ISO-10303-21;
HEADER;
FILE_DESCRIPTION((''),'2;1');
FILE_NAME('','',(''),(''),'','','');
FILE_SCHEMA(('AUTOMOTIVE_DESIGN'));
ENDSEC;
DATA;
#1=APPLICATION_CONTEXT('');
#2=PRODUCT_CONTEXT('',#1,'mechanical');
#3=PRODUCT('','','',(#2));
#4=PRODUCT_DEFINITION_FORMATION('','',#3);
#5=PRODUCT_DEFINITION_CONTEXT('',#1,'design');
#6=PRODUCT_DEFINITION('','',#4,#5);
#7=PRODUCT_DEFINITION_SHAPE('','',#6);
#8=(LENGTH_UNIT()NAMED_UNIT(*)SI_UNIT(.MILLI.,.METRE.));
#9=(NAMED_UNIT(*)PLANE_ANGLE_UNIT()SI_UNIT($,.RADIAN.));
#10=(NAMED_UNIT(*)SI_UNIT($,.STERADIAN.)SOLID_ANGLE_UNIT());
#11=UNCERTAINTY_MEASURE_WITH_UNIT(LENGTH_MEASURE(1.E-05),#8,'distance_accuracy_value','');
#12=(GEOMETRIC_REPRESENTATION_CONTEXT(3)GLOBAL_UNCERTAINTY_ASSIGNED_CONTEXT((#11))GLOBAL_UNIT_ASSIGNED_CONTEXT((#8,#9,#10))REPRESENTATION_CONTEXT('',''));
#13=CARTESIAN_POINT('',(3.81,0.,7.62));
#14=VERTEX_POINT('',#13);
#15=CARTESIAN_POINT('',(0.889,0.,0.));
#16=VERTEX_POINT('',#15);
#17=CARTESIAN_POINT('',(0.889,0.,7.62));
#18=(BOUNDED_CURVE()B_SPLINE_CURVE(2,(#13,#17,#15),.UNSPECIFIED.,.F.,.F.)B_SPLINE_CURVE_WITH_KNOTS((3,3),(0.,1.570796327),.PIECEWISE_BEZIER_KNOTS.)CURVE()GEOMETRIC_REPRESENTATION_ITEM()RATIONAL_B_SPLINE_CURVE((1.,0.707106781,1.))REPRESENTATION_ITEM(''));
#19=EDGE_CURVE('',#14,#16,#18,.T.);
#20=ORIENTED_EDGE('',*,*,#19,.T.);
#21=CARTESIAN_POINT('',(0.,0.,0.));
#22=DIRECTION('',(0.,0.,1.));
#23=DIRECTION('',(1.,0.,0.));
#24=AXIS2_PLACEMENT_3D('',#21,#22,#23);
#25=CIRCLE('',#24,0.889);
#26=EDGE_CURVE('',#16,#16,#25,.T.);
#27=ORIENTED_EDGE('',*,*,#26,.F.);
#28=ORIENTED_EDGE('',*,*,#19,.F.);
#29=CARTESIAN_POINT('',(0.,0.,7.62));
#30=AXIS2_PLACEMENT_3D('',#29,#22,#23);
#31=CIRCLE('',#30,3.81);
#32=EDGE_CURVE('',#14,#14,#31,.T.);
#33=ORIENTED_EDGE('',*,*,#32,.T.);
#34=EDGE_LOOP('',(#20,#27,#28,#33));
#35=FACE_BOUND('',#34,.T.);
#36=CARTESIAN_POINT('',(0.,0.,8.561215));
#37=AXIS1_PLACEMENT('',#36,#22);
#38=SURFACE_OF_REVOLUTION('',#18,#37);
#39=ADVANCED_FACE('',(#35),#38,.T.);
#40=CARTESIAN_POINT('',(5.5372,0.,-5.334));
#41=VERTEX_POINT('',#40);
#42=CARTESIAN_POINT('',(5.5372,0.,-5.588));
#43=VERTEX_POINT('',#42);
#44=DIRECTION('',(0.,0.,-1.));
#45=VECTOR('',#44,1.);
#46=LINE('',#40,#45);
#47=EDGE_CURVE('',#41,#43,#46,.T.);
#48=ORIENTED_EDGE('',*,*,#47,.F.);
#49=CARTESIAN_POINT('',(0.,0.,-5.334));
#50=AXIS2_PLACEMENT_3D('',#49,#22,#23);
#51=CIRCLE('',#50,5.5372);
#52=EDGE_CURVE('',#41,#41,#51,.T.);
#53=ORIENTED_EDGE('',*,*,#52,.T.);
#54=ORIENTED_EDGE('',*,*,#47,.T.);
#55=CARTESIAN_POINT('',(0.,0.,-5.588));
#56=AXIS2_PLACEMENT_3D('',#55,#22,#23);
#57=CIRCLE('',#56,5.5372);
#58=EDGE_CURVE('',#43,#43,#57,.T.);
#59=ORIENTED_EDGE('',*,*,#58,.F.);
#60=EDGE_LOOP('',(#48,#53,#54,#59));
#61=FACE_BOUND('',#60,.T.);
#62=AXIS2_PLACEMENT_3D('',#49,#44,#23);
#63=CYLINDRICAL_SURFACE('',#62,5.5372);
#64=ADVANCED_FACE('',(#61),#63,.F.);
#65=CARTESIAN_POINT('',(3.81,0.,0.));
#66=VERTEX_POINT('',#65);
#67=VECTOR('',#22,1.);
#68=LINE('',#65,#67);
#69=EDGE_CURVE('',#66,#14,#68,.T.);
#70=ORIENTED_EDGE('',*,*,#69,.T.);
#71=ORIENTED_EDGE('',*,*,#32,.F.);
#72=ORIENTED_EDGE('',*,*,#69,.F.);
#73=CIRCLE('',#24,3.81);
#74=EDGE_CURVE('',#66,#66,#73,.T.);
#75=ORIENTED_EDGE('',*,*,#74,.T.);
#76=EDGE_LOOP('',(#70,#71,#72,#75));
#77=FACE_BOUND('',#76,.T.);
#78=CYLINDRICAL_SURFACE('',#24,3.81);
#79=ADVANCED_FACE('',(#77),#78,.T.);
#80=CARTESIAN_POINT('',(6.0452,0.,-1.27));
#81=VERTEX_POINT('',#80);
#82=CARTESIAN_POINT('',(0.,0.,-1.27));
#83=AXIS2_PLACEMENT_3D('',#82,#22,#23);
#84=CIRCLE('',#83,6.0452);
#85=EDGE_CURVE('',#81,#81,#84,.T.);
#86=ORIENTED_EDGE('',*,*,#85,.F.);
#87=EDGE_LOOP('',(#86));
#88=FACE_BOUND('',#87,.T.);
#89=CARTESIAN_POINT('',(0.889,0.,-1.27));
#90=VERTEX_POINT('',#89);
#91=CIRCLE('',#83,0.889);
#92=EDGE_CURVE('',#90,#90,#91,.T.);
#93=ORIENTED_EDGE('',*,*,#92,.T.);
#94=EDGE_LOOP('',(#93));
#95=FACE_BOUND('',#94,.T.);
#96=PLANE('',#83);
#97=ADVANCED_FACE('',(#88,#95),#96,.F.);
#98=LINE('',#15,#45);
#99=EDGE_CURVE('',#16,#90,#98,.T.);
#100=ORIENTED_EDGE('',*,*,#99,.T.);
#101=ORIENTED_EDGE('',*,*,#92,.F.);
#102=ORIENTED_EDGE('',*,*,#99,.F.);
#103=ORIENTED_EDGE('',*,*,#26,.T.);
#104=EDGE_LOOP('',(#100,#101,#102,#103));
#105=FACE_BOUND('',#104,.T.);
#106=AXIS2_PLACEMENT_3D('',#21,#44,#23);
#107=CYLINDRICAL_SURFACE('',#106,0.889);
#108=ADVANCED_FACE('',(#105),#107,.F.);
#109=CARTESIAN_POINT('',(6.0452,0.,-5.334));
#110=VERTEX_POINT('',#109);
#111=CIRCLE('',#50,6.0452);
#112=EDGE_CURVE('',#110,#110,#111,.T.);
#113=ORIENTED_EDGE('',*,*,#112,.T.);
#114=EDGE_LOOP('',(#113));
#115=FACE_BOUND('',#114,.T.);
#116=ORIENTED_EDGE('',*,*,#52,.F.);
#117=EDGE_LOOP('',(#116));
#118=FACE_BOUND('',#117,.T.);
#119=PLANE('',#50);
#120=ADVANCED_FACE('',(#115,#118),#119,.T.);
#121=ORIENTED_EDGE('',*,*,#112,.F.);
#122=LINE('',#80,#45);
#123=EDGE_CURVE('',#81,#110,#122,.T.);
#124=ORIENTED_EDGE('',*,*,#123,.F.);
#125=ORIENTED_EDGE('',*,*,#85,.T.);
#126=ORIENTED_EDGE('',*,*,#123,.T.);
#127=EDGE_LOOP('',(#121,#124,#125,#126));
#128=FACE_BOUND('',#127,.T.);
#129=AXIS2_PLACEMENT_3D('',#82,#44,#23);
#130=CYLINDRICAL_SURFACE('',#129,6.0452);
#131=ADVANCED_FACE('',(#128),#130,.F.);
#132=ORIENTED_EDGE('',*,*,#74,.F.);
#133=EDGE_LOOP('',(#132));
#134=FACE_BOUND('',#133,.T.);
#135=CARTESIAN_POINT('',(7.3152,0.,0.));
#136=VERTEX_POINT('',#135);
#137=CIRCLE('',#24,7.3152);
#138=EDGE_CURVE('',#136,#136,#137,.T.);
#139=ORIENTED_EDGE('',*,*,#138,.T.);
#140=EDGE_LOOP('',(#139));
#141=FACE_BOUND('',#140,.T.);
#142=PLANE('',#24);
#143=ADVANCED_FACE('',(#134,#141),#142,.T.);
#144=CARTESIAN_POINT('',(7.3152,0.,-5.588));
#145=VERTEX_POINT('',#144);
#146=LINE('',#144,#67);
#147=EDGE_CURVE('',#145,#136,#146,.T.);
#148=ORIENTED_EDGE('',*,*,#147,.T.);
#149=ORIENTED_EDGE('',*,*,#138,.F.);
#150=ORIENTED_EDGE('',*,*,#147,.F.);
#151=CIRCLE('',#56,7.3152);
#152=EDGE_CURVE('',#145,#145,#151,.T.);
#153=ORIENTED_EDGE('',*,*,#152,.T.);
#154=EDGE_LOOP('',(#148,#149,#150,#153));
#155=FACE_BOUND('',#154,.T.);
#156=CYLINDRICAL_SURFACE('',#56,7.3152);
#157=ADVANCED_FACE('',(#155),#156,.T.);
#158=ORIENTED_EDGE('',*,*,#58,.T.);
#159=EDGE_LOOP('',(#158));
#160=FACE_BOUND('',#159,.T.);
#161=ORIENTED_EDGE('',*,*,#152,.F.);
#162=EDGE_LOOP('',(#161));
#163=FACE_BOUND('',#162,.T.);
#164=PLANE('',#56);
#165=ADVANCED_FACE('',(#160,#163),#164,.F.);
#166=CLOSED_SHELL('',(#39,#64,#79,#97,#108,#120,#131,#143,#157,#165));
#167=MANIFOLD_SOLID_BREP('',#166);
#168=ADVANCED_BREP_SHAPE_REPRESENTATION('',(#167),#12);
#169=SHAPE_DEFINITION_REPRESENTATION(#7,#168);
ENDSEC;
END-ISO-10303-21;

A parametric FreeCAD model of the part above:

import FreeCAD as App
import Part
import Sketcher
from FreeCAD import Vector
Q = App.Units.Quantity

doc = App.newDocument("Part")
params = doc.addObject("Spreadsheet::Sheet", "Params")
for row, (alias, value) in enumerate([
    ("sketch1_width", "0.02 in"),
    ("sketch1_width2", "0.07 in"),
    ("sketch1_height", "0.05 in"),
    ("sketch1_height2", "0.16 in"),
    ("sketch1_height3", "0.01 in"),
    ("revolution_angle", "360 deg"),
], start=1):
    params.set(f"A{row}", alias)
    params.set(f"B{row}", "=" + value)
    params.setAlias(f"B{row}", alias)

body = doc.addObject("PartDesign::Body", "Body")

# Sketch on XZ plane
sketch1 = doc.addObject("Sketcher::SketchObject", "Sketch")
body.addObject(sketch1)
sketch1.AttachmentSupport = (doc.XZ_Plane, [""])
sketch1.MapMode = "FlatFace"
sketch1.addGeometry([
    Part.LineSegment(Vector(3.81, 0, 0), Vector(3.81, 7.62, 0)),  # 0
    Part.BSplineCurve([Vector(3.81, 7.62, 0), Vector(0.889, 7.62, 0), Vector(0.889, 0, 0)], [3, 3], [0, 1.570796327], False, 2, [1, 0.707106781, 1], False),  # 1
    Part.LineSegment(Vector(0.889, 0, 0), Vector(0.889, -1.27, 0)),  # 2
    Part.LineSegment(Vector(0.889, -1.27, 0), Vector(6.0452, -1.27, 0)),  # 3
    Part.LineSegment(Vector(6.0452, -1.27, 0), Vector(6.0452, -5.334, 0)),  # 4
    Part.LineSegment(Vector(6.0452, -5.334, 0), Vector(5.5372, -5.334, 0)),  # 5
    Part.LineSegment(Vector(5.5372, -5.334, 0), Vector(5.5372, -5.588, 0)),  # 6
    Part.LineSegment(Vector(5.5372, -5.588, 0), Vector(7.3152, -5.588, 0)),  # 7
    Part.LineSegment(Vector(7.3152, -5.588, 0), Vector(7.3152, 0, 0)),  # 8
    Part.LineSegment(Vector(7.3152, 0, 0), Vector(3.81, 0, 0)),  # 9
], False)
sketch1.addConstraint([
    Sketcher.Constraint("Block", 1),
    Sketcher.Constraint("Coincident", 0, 2, 1, 1),
    Sketcher.Constraint("Coincident", 1, 2, 2, 1),
    Sketcher.Constraint("Coincident", 2, 2, 3, 1),
    Sketcher.Constraint("Coincident", 3, 2, 4, 1),
    Sketcher.Constraint("Coincident", 4, 2, 5, 1),
    Sketcher.Constraint("Coincident", 5, 2, 6, 1),
    Sketcher.Constraint("Coincident", 6, 2, 7, 1),
    Sketcher.Constraint("Coincident", 7, 2, 8, 1),
    Sketcher.Constraint("Coincident", 8, 2, 9, 1),
    Sketcher.Constraint("Coincident", 9, 2, 0, 1),
    Sketcher.Constraint("Vertical", 0),
    Sketcher.Constraint("Vertical", 2),
    Sketcher.Constraint("Horizontal", 3),
    Sketcher.Constraint("Vertical", 4),
    Sketcher.Constraint("Horizontal", 5),
    Sketcher.Constraint("Vertical", 6),
    Sketcher.Constraint("Horizontal", 7),
    Sketcher.Constraint("Vertical", 8),
    Sketcher.Constraint("Horizontal", 9),
    Sketcher.Constraint("PointOnObject", 8, 2, -1),
    Sketcher.Constraint("DistanceX", 5, 2, 5, 1, Q("0.02 in")),
    Sketcher.Constraint("DistanceX", 7, 1, 7, 2, Q("0.07 in")),
    Sketcher.Constraint("DistanceY", 2, 2, 2, 1, Q("0.05 in")),
    Sketcher.Constraint("DistanceY", 4, 2, 4, 1, Q("0.16 in")),
    Sketcher.Constraint("DistanceY", 6, 2, 6, 1, Q("0.01 in")),
    Sketcher.Constraint("DistanceX", 3, 1, 3, 2, Q("0.203 in")),
])
sketch1.setExpression("Constraints[21]", "Params.sketch1_width")
sketch1.setExpression("Constraints[22]", "Params.sketch1_width2")
sketch1.setExpression("Constraints[23]", "Params.sketch1_height")
sketch1.setExpression("Constraints[24]", "Params.sketch1_height2")
sketch1.setExpression("Constraints[25]", "Params.sketch1_height3")
revolution = doc.addObject("PartDesign::Revolution", "Revolution")
body.addObject(revolution)
revolution.Profile = sketch1
revolution.ReferenceAxis = (sketch1, ["V_Axis"])
revolution.setExpression("Angle", "Params.revolution_angle")

doc.recompute()
